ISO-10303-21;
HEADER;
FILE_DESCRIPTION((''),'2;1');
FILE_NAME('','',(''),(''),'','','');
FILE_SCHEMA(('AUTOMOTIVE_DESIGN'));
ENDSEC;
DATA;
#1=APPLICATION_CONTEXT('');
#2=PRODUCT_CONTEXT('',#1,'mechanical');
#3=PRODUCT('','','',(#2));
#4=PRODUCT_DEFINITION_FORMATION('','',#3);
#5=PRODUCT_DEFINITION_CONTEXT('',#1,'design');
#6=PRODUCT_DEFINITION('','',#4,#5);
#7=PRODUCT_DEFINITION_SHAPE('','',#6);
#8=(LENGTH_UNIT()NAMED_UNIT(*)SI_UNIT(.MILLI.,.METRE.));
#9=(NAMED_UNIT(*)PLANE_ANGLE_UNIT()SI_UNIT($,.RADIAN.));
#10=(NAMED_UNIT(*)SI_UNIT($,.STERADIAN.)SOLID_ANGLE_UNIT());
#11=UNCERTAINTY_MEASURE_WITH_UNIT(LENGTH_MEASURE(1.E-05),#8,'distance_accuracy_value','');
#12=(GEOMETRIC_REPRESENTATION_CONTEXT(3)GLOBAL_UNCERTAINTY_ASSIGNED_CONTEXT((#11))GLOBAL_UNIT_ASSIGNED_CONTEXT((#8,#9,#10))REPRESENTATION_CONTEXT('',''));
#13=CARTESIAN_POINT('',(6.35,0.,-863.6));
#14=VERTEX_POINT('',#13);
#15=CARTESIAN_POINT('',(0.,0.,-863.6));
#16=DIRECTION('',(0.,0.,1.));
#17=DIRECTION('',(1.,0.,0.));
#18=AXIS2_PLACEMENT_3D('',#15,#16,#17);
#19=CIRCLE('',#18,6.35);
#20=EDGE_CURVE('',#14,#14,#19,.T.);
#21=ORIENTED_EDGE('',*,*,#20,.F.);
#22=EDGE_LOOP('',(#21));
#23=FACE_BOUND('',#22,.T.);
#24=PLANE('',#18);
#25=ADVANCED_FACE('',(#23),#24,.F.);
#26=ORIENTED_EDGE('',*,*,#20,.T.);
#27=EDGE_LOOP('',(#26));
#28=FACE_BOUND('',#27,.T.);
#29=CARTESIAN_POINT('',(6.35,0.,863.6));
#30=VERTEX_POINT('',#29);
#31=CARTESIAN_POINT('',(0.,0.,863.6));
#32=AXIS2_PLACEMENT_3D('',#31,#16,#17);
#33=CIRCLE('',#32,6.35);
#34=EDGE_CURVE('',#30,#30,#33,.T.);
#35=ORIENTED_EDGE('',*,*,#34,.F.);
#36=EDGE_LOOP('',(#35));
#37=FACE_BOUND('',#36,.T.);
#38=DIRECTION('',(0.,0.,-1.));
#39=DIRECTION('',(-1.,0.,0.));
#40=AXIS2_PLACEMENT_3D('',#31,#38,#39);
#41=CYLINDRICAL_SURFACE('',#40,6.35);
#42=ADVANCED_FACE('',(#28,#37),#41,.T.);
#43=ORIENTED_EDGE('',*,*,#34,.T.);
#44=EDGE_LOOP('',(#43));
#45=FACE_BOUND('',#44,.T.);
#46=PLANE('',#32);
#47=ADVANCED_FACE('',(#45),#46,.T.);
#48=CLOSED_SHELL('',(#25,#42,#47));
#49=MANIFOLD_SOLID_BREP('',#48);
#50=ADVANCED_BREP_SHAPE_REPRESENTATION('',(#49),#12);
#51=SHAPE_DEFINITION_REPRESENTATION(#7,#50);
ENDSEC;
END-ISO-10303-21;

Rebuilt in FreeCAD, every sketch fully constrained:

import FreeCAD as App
import Part
import Sketcher

V = App.Vector
Q = App.Units.Quantity

doc = App.newDocument("Part")
body = doc.addObject("PartDesign::Body", "Body")

# Sketch on XY plane
sketch1 = doc.addObject("Sketcher::SketchObject", "Sketch")
body.addObject(sketch1)
sketch1.AttachmentSupport = (doc.XY_Plane, [""])
sketch1.MapMode = "FlatFace"
sketch1.addGeometry(Part.Circle(V(0, 0, 0), V(0, 0, 1), 6.35), False)
sketch1.addConstraint(Sketcher.Constraint("Coincident", 0, 3, -1, 1))
sketch1.addConstraint(Sketcher.Constraint("Diameter", 0, Q("0.5 in")))
pad1 = doc.addObject("PartDesign::Pad", "Pad")
body.addObject(pad1)
pad1.Profile = sketch1
pad1.Length = Q("68 in")
pad1.Midplane = True

doc.recompute()
